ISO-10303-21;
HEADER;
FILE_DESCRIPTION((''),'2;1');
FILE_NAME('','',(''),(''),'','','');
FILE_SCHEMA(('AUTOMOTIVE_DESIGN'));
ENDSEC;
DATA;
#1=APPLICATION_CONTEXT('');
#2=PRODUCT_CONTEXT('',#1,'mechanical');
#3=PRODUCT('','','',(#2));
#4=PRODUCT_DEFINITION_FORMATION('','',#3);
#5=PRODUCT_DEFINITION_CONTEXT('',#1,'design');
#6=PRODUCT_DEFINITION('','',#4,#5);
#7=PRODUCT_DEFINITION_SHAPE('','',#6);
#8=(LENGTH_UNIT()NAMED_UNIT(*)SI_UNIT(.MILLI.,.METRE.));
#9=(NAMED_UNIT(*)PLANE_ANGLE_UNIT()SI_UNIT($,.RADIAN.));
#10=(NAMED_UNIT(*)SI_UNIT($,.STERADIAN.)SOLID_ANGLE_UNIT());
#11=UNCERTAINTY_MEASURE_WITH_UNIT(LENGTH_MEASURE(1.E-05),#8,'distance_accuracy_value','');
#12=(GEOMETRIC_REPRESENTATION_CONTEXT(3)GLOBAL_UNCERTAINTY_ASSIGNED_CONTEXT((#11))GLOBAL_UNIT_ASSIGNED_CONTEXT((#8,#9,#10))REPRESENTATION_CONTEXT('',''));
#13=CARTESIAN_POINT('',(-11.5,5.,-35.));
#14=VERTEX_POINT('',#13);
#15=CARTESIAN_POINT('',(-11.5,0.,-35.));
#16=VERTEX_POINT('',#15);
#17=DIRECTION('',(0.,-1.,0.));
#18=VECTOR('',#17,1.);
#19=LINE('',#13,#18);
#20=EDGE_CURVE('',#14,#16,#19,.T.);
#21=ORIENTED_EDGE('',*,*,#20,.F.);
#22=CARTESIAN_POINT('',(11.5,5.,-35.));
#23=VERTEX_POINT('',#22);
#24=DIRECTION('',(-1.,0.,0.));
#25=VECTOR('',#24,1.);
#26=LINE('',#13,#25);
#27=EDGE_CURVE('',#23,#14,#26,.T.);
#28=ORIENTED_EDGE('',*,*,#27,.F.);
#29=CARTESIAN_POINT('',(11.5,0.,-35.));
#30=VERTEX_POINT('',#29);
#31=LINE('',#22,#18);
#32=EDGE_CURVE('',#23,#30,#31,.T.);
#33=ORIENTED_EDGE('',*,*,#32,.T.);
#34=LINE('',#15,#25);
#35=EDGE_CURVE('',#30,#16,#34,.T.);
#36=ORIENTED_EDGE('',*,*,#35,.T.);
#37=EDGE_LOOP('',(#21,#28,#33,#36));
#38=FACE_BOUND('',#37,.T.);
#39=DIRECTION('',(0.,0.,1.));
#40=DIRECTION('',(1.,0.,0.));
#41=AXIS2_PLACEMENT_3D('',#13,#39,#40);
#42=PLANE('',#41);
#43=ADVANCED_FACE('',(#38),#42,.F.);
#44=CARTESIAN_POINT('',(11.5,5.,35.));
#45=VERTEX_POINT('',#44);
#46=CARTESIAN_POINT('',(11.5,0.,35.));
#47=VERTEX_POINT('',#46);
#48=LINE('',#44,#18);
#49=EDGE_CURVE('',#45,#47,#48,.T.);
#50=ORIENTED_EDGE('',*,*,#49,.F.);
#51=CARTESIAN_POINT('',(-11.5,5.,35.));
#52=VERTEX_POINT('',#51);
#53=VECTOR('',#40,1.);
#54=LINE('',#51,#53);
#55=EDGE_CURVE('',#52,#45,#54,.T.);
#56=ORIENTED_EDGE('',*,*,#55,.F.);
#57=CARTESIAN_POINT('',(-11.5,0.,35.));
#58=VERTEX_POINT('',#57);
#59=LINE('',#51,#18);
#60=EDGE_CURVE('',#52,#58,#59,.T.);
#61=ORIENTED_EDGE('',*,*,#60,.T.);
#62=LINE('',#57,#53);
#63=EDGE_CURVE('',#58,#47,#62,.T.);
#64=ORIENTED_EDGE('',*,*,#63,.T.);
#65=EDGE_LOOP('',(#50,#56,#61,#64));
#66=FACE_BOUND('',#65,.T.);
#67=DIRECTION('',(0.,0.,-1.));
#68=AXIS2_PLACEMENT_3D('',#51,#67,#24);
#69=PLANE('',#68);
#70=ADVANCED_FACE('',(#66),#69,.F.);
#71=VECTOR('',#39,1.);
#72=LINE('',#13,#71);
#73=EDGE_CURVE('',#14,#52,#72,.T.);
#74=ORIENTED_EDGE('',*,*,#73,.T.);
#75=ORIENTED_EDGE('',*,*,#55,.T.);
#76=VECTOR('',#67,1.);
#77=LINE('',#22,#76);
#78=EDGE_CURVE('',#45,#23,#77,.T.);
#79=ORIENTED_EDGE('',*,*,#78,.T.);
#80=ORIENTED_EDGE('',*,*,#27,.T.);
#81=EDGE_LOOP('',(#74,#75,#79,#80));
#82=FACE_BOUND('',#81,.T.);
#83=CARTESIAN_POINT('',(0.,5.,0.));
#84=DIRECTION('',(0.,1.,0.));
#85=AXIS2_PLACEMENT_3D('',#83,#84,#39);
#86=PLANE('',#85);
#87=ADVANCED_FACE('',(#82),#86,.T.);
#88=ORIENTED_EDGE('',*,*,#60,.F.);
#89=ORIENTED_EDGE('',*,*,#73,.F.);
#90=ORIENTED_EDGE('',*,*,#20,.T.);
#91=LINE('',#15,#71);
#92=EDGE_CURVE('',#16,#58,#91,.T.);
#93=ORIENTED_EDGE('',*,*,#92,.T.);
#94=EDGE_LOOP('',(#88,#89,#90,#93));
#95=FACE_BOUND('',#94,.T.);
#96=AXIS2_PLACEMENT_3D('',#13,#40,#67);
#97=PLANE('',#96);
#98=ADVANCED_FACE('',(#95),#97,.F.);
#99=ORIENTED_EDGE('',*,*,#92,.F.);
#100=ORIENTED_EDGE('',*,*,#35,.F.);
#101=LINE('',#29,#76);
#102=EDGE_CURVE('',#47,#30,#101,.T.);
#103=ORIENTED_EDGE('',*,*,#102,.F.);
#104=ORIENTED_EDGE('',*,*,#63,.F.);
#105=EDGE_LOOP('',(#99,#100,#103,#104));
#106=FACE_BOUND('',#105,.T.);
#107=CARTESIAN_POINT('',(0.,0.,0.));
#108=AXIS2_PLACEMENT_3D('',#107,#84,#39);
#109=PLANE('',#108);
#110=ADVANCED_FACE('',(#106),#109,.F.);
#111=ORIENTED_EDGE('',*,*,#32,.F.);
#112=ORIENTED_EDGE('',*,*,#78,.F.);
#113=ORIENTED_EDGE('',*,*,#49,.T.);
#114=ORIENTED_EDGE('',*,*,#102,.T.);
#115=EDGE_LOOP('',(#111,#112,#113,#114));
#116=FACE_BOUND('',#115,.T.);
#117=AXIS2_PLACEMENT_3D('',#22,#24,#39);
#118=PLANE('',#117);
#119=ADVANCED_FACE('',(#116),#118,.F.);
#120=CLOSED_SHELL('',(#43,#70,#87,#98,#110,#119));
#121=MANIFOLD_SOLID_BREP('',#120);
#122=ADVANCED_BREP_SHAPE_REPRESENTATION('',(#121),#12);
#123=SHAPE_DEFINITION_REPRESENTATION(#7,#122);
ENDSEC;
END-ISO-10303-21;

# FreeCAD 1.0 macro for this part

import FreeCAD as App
import Part
import Sketcher

V = App.Vector
Q = App.Units.Quantity

doc = App.newDocument("Part")
params = doc.addObject("Spreadsheet::Sheet", "Params")
for row, (alias, value) in enumerate([
    ("sketch1_width", "23 mm"),
    ("sketch1_height", "70 mm"),
    ("pad1_length", "5 mm"),
], start=1):
    params.set(f"A{row}", alias)
    params.set(f"B{row}", "=" + value)
    params.setAlias(f"B{row}", alias)

body = doc.addObject("PartDesign::Body", "Body")

# Sketch on XZ plane
sketch1 = doc.addObject("Sketcher::SketchObject", "Sketch")
body.addObject(sketch1)
sketch1.AttachmentSupport = (doc.XZ_Plane, [""])
sketch1.MapMode = "FlatFace"
sketch1.addGeometry(Part.LineSegment(V(-12, -35, 0), V(-12, 35, 0)), False)
sketch1.addGeometry(Part.LineSegment(V(-12, 35, 0), V(12, 35, 0)), False)
sketch1.addGeometry(Part.LineSegment(V(12, 35, 0), V(12, -35, 0)), False)
sketch1.addGeometry(Part.LineSegment(V(12, -35, 0), V(-12, -35, 0)), False)
sketch1.addConstraint(Sketcher.Constraint("Coincident", 0, 2, 1, 1))
sketch1.addConstraint(Sketcher.Constraint("Coincident", 1, 2, 2, 1))
sketch1.addConstraint(Sketcher.Constraint("Coincident", 2, 2, 3, 1))
sketch1.addConstraint(Sketcher.Constraint("Coincident", 3, 2, 0, 1))
sketch1.addConstraint(Sketcher.Constraint("Vertical", 0))
sketch1.addConstraint(Sketcher.Constraint("Horizontal", 1))
sketch1.addConstraint(Sketcher.Constraint("Vertical", 2))
sketch1.addConstraint(Sketcher.Constraint("Horizontal", 3))
sketch1.addConstraint(Sketcher.Constraint("Symmetric", 0, 2, 2, 2, -1, 1))
sketch1.addConstraint(Sketcher.Constraint("DistanceX", 1, 1, 1, 2, Q("23 mm")))
sketch1.addConstraint(Sketcher.Constraint("DistanceY", 0, 1, 0, 2, Q("70 mm")))
sketch1.setExpression("Constraints[9]", "Params.sketch1_width")
sketch1.setExpression("Constraints[10]", "Params.sketch1_height")
pad1 = doc.addObject("PartDesign::Pad", "Pad")
body.addObject(pad1)
pad1.Profile = sketch1
pad1.setExpression("Length", "Params.pad1_length")
pad1.Reversed = True

doc.recompute()
